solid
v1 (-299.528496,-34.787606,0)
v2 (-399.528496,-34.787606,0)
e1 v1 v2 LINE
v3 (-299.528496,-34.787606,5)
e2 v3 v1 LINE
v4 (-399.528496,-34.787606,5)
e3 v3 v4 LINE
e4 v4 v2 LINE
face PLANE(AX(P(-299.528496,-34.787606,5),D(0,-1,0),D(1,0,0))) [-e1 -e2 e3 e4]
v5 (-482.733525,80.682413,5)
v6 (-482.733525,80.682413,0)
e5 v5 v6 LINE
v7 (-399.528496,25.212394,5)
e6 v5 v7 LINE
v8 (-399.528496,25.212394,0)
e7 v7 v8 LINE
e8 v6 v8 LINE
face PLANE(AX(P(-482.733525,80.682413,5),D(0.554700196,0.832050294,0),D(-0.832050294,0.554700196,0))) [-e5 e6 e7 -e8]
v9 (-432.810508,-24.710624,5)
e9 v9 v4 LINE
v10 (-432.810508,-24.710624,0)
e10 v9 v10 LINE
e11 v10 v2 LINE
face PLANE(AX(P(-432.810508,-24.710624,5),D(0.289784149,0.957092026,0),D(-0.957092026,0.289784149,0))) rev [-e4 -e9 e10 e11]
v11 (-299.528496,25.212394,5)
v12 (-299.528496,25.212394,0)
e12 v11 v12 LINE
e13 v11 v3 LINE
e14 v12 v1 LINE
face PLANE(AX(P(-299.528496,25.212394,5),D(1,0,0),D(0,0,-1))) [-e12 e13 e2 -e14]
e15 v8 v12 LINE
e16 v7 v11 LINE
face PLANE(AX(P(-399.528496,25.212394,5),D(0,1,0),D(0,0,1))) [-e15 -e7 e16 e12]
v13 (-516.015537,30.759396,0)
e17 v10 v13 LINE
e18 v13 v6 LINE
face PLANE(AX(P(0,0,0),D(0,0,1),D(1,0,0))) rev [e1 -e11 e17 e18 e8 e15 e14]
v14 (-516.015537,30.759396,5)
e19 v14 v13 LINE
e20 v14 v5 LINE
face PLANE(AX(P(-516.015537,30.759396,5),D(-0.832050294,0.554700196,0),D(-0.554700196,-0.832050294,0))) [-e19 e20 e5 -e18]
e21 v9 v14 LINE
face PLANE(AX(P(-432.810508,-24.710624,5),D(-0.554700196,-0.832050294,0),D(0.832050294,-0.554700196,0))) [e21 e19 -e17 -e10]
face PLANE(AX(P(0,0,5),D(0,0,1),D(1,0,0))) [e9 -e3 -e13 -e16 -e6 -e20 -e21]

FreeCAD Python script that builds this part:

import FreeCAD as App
import Part
import Sketcher

doc = App.newDocument("Part")
body = doc.addObject("PartDesign::Body", "Body")

# Sketch on XY plane
sketch1 = body.newObject("Sketcher::SketchObject", "Sketch")
sketch1.AttachmentSupport = (doc.getObject("XY_Plane"), [""])
sketch1.MapMode = "FlatFace"
sketch1.addGeometry([
    Part.LineSegment(App.Vector(-400, 25, 0), App.Vector(-483, 81, 0)),  # 0
    Part.LineSegment(App.Vector(-483, 81, 0), App.Vector(-516, 31, 0)),  # 1
    Part.LineSegment(App.Vector(-516, 31, 0), App.Vector(-433, -25, 0)),  # 2
    Part.LineSegment(App.Vector(-433, -25, 0), App.Vector(-400, -35, 0)),  # 3
    Part.LineSegment(App.Vector(-400, -35, 0), App.Vector(-300, -35, 0)),  # 4
    Part.LineSegment(App.Vector(-300, -35, 0), App.Vector(-300, 25, 0)),  # 5
    Part.LineSegment(App.Vector(-300, 25, 0), App.Vector(-400, 25, 0)),  # 6
], False)
sketch1.addConstraint([
    Sketcher.Constraint("Coincident", 0, 2, 1, 1),
    Sketcher.Constraint("Coincident", 1, 2, 2, 1),
    Sketcher.Constraint("Coincident", 2, 2, 3, 1),
    Sketcher.Constraint("Coincident", 3, 2, 4, 1),
    Sketcher.Constraint("Coincident", 4, 2, 5, 1),
    Sketcher.Constraint("Coincident", 5, 2, 6, 1),
    Sketcher.Constraint("Coincident", 6, 2, 0, 1),
    Sketcher.Constraint("Horizontal", 4),
    Sketcher.Constraint("Vertical", 5),
    Sketcher.Constraint("Horizontal", 6),
    Sketcher.Constraint("Perpendicular", 0, 1),
    Sketcher.Constraint("Perpendicular", 1, 2),
    Sketcher.Constraint("Vertical", 3, 2, 6, 2),
    Sketcher.Constraint("Equal", 0, 2),
    Sketcher.Constraint("DistanceX", 4, 1, 4, 2, 100.0),
    Sketcher.Constraint("DistanceY", 5, 1, 5, 2, 60.0),
    Sketcher.Constraint("Distance", 0, 100.0),
    Sketcher.Constraint("Distance", 1, 60.0),
    Sketcher.Constraint("DistanceY", 3, 2, 1, 2, 65.547002),
    Sketcher.Constraint("DistanceX", 0, 2, -1, 1, 482.733525),
    Sketcher.Constraint("DistanceY", -1, 1, 0, 2, 80.682413),
])
pad1 = body.newObject("PartDesign::Pad", "Pad")
pad1.Profile = sketch1
pad1.Length = 5

doc.recompute()
